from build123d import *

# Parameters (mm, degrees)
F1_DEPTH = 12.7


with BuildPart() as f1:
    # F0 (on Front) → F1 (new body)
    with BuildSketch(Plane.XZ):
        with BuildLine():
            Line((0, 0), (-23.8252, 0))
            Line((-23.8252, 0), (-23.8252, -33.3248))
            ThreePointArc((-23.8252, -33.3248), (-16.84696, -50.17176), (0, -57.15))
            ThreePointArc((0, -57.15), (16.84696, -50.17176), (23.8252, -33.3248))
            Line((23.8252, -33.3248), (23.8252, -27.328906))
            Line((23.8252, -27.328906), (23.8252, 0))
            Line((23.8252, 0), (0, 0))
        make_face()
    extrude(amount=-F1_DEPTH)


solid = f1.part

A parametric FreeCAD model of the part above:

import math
import FreeCAD as App
import Part
import Sketcher
from FreeCAD import Vector
Q = App.Units.Quantity

doc = App.newDocument("Part")
params = doc.addObject("Spreadsheet::Sheet", "Params")
for row, (alias, value) in enumerate([
    ("sketch1_radius", "0.9380001 in"),
    ("sketch1_height", "1.312 in"),
    ("pad1_length", "0.5 in"),
], start=1):
    params.set(f"A{row}", alias)
    params.set(f"B{row}", "=" + value)
    params.setAlias(f"B{row}", alias)

body = doc.addObject("PartDesign::Body", "Body")

sketch1 = doc.addObject("Sketcher::SketchObject", "Sketch")
body.addObject(sketch1)
sketch1.AttachmentSupport = (doc.XZ_Plane, [""])
sketch1.MapMode = "FlatFace"
sketch1.addGeometry([
    Part.LineSegment(Vector(-23.8252, 0, 0), Vector(-23.8252, -33.3248, 0)),
    Part.ArcOfCircle(Part.Circle(Vector(0.000002, -33.324798, 0), Vector(0, 0, 1), 23.825202), math.radians(-179.999996), math.radians(-90.000004)),
    Part.ArcOfCircle(Part.Circle(Vector(-0.000002, -33.324798, 0), Vector(0, 0, 1), 23.825202), math.radians(-89.999996), math.radians(-0.000004)),
    Part.LineSegment(Vector(23.8252, -33.3248, 0), Vector(23.8252, 0, 0)),
    Part.LineSegment(Vector(23.8252, 0, 0), Vector(-23.8252, 0, 0)),
], False)
sketch1.addConstraint([
    Sketcher.Constraint("Tangent", 0, 2, 1, 1),
    Sketcher.Constraint("Tangent", 1, 2, 2, 1),
    Sketcher.Constraint("Tangent", 2, 2, 3, 1),
    Sketcher.Constraint("Coincident", 3, 2, 4, 1),
    Sketcher.Constraint("Coincident", 4, 2, 0, 1),
    Sketcher.Constraint("Vertical", 0),
    Sketcher.Constraint("Vertical", 3),
    Sketcher.Constraint("Horizontal", 4),
    Sketcher.Constraint("Equal", 1, 2),
    Sketcher.Constraint("Symmetric", 3, 2, 4, 2, -1, 1),
    Sketcher.Constraint("PointOnObject", 1, 2, -2),
    Sketcher.Constraint("Radius", 1, Q("0.9380001 in")),
    Sketcher.Constraint("DistanceY", 0, 2, 0, 1, Q("1.312 in")),
])
sketch1.setExpression("Constraints[11]", "Params.sketch1_radius")
sketch1.setExpression("Constraints[12]", "Params.sketch1_height")
pad1 = doc.addObject("PartDesign::Pad", "Pad")
body.addObject(pad1)
pad1.Profile = sketch1
pad1.setExpression("Length", "Params.pad1_length")
pad1.Reversed = True

doc.recompute()
